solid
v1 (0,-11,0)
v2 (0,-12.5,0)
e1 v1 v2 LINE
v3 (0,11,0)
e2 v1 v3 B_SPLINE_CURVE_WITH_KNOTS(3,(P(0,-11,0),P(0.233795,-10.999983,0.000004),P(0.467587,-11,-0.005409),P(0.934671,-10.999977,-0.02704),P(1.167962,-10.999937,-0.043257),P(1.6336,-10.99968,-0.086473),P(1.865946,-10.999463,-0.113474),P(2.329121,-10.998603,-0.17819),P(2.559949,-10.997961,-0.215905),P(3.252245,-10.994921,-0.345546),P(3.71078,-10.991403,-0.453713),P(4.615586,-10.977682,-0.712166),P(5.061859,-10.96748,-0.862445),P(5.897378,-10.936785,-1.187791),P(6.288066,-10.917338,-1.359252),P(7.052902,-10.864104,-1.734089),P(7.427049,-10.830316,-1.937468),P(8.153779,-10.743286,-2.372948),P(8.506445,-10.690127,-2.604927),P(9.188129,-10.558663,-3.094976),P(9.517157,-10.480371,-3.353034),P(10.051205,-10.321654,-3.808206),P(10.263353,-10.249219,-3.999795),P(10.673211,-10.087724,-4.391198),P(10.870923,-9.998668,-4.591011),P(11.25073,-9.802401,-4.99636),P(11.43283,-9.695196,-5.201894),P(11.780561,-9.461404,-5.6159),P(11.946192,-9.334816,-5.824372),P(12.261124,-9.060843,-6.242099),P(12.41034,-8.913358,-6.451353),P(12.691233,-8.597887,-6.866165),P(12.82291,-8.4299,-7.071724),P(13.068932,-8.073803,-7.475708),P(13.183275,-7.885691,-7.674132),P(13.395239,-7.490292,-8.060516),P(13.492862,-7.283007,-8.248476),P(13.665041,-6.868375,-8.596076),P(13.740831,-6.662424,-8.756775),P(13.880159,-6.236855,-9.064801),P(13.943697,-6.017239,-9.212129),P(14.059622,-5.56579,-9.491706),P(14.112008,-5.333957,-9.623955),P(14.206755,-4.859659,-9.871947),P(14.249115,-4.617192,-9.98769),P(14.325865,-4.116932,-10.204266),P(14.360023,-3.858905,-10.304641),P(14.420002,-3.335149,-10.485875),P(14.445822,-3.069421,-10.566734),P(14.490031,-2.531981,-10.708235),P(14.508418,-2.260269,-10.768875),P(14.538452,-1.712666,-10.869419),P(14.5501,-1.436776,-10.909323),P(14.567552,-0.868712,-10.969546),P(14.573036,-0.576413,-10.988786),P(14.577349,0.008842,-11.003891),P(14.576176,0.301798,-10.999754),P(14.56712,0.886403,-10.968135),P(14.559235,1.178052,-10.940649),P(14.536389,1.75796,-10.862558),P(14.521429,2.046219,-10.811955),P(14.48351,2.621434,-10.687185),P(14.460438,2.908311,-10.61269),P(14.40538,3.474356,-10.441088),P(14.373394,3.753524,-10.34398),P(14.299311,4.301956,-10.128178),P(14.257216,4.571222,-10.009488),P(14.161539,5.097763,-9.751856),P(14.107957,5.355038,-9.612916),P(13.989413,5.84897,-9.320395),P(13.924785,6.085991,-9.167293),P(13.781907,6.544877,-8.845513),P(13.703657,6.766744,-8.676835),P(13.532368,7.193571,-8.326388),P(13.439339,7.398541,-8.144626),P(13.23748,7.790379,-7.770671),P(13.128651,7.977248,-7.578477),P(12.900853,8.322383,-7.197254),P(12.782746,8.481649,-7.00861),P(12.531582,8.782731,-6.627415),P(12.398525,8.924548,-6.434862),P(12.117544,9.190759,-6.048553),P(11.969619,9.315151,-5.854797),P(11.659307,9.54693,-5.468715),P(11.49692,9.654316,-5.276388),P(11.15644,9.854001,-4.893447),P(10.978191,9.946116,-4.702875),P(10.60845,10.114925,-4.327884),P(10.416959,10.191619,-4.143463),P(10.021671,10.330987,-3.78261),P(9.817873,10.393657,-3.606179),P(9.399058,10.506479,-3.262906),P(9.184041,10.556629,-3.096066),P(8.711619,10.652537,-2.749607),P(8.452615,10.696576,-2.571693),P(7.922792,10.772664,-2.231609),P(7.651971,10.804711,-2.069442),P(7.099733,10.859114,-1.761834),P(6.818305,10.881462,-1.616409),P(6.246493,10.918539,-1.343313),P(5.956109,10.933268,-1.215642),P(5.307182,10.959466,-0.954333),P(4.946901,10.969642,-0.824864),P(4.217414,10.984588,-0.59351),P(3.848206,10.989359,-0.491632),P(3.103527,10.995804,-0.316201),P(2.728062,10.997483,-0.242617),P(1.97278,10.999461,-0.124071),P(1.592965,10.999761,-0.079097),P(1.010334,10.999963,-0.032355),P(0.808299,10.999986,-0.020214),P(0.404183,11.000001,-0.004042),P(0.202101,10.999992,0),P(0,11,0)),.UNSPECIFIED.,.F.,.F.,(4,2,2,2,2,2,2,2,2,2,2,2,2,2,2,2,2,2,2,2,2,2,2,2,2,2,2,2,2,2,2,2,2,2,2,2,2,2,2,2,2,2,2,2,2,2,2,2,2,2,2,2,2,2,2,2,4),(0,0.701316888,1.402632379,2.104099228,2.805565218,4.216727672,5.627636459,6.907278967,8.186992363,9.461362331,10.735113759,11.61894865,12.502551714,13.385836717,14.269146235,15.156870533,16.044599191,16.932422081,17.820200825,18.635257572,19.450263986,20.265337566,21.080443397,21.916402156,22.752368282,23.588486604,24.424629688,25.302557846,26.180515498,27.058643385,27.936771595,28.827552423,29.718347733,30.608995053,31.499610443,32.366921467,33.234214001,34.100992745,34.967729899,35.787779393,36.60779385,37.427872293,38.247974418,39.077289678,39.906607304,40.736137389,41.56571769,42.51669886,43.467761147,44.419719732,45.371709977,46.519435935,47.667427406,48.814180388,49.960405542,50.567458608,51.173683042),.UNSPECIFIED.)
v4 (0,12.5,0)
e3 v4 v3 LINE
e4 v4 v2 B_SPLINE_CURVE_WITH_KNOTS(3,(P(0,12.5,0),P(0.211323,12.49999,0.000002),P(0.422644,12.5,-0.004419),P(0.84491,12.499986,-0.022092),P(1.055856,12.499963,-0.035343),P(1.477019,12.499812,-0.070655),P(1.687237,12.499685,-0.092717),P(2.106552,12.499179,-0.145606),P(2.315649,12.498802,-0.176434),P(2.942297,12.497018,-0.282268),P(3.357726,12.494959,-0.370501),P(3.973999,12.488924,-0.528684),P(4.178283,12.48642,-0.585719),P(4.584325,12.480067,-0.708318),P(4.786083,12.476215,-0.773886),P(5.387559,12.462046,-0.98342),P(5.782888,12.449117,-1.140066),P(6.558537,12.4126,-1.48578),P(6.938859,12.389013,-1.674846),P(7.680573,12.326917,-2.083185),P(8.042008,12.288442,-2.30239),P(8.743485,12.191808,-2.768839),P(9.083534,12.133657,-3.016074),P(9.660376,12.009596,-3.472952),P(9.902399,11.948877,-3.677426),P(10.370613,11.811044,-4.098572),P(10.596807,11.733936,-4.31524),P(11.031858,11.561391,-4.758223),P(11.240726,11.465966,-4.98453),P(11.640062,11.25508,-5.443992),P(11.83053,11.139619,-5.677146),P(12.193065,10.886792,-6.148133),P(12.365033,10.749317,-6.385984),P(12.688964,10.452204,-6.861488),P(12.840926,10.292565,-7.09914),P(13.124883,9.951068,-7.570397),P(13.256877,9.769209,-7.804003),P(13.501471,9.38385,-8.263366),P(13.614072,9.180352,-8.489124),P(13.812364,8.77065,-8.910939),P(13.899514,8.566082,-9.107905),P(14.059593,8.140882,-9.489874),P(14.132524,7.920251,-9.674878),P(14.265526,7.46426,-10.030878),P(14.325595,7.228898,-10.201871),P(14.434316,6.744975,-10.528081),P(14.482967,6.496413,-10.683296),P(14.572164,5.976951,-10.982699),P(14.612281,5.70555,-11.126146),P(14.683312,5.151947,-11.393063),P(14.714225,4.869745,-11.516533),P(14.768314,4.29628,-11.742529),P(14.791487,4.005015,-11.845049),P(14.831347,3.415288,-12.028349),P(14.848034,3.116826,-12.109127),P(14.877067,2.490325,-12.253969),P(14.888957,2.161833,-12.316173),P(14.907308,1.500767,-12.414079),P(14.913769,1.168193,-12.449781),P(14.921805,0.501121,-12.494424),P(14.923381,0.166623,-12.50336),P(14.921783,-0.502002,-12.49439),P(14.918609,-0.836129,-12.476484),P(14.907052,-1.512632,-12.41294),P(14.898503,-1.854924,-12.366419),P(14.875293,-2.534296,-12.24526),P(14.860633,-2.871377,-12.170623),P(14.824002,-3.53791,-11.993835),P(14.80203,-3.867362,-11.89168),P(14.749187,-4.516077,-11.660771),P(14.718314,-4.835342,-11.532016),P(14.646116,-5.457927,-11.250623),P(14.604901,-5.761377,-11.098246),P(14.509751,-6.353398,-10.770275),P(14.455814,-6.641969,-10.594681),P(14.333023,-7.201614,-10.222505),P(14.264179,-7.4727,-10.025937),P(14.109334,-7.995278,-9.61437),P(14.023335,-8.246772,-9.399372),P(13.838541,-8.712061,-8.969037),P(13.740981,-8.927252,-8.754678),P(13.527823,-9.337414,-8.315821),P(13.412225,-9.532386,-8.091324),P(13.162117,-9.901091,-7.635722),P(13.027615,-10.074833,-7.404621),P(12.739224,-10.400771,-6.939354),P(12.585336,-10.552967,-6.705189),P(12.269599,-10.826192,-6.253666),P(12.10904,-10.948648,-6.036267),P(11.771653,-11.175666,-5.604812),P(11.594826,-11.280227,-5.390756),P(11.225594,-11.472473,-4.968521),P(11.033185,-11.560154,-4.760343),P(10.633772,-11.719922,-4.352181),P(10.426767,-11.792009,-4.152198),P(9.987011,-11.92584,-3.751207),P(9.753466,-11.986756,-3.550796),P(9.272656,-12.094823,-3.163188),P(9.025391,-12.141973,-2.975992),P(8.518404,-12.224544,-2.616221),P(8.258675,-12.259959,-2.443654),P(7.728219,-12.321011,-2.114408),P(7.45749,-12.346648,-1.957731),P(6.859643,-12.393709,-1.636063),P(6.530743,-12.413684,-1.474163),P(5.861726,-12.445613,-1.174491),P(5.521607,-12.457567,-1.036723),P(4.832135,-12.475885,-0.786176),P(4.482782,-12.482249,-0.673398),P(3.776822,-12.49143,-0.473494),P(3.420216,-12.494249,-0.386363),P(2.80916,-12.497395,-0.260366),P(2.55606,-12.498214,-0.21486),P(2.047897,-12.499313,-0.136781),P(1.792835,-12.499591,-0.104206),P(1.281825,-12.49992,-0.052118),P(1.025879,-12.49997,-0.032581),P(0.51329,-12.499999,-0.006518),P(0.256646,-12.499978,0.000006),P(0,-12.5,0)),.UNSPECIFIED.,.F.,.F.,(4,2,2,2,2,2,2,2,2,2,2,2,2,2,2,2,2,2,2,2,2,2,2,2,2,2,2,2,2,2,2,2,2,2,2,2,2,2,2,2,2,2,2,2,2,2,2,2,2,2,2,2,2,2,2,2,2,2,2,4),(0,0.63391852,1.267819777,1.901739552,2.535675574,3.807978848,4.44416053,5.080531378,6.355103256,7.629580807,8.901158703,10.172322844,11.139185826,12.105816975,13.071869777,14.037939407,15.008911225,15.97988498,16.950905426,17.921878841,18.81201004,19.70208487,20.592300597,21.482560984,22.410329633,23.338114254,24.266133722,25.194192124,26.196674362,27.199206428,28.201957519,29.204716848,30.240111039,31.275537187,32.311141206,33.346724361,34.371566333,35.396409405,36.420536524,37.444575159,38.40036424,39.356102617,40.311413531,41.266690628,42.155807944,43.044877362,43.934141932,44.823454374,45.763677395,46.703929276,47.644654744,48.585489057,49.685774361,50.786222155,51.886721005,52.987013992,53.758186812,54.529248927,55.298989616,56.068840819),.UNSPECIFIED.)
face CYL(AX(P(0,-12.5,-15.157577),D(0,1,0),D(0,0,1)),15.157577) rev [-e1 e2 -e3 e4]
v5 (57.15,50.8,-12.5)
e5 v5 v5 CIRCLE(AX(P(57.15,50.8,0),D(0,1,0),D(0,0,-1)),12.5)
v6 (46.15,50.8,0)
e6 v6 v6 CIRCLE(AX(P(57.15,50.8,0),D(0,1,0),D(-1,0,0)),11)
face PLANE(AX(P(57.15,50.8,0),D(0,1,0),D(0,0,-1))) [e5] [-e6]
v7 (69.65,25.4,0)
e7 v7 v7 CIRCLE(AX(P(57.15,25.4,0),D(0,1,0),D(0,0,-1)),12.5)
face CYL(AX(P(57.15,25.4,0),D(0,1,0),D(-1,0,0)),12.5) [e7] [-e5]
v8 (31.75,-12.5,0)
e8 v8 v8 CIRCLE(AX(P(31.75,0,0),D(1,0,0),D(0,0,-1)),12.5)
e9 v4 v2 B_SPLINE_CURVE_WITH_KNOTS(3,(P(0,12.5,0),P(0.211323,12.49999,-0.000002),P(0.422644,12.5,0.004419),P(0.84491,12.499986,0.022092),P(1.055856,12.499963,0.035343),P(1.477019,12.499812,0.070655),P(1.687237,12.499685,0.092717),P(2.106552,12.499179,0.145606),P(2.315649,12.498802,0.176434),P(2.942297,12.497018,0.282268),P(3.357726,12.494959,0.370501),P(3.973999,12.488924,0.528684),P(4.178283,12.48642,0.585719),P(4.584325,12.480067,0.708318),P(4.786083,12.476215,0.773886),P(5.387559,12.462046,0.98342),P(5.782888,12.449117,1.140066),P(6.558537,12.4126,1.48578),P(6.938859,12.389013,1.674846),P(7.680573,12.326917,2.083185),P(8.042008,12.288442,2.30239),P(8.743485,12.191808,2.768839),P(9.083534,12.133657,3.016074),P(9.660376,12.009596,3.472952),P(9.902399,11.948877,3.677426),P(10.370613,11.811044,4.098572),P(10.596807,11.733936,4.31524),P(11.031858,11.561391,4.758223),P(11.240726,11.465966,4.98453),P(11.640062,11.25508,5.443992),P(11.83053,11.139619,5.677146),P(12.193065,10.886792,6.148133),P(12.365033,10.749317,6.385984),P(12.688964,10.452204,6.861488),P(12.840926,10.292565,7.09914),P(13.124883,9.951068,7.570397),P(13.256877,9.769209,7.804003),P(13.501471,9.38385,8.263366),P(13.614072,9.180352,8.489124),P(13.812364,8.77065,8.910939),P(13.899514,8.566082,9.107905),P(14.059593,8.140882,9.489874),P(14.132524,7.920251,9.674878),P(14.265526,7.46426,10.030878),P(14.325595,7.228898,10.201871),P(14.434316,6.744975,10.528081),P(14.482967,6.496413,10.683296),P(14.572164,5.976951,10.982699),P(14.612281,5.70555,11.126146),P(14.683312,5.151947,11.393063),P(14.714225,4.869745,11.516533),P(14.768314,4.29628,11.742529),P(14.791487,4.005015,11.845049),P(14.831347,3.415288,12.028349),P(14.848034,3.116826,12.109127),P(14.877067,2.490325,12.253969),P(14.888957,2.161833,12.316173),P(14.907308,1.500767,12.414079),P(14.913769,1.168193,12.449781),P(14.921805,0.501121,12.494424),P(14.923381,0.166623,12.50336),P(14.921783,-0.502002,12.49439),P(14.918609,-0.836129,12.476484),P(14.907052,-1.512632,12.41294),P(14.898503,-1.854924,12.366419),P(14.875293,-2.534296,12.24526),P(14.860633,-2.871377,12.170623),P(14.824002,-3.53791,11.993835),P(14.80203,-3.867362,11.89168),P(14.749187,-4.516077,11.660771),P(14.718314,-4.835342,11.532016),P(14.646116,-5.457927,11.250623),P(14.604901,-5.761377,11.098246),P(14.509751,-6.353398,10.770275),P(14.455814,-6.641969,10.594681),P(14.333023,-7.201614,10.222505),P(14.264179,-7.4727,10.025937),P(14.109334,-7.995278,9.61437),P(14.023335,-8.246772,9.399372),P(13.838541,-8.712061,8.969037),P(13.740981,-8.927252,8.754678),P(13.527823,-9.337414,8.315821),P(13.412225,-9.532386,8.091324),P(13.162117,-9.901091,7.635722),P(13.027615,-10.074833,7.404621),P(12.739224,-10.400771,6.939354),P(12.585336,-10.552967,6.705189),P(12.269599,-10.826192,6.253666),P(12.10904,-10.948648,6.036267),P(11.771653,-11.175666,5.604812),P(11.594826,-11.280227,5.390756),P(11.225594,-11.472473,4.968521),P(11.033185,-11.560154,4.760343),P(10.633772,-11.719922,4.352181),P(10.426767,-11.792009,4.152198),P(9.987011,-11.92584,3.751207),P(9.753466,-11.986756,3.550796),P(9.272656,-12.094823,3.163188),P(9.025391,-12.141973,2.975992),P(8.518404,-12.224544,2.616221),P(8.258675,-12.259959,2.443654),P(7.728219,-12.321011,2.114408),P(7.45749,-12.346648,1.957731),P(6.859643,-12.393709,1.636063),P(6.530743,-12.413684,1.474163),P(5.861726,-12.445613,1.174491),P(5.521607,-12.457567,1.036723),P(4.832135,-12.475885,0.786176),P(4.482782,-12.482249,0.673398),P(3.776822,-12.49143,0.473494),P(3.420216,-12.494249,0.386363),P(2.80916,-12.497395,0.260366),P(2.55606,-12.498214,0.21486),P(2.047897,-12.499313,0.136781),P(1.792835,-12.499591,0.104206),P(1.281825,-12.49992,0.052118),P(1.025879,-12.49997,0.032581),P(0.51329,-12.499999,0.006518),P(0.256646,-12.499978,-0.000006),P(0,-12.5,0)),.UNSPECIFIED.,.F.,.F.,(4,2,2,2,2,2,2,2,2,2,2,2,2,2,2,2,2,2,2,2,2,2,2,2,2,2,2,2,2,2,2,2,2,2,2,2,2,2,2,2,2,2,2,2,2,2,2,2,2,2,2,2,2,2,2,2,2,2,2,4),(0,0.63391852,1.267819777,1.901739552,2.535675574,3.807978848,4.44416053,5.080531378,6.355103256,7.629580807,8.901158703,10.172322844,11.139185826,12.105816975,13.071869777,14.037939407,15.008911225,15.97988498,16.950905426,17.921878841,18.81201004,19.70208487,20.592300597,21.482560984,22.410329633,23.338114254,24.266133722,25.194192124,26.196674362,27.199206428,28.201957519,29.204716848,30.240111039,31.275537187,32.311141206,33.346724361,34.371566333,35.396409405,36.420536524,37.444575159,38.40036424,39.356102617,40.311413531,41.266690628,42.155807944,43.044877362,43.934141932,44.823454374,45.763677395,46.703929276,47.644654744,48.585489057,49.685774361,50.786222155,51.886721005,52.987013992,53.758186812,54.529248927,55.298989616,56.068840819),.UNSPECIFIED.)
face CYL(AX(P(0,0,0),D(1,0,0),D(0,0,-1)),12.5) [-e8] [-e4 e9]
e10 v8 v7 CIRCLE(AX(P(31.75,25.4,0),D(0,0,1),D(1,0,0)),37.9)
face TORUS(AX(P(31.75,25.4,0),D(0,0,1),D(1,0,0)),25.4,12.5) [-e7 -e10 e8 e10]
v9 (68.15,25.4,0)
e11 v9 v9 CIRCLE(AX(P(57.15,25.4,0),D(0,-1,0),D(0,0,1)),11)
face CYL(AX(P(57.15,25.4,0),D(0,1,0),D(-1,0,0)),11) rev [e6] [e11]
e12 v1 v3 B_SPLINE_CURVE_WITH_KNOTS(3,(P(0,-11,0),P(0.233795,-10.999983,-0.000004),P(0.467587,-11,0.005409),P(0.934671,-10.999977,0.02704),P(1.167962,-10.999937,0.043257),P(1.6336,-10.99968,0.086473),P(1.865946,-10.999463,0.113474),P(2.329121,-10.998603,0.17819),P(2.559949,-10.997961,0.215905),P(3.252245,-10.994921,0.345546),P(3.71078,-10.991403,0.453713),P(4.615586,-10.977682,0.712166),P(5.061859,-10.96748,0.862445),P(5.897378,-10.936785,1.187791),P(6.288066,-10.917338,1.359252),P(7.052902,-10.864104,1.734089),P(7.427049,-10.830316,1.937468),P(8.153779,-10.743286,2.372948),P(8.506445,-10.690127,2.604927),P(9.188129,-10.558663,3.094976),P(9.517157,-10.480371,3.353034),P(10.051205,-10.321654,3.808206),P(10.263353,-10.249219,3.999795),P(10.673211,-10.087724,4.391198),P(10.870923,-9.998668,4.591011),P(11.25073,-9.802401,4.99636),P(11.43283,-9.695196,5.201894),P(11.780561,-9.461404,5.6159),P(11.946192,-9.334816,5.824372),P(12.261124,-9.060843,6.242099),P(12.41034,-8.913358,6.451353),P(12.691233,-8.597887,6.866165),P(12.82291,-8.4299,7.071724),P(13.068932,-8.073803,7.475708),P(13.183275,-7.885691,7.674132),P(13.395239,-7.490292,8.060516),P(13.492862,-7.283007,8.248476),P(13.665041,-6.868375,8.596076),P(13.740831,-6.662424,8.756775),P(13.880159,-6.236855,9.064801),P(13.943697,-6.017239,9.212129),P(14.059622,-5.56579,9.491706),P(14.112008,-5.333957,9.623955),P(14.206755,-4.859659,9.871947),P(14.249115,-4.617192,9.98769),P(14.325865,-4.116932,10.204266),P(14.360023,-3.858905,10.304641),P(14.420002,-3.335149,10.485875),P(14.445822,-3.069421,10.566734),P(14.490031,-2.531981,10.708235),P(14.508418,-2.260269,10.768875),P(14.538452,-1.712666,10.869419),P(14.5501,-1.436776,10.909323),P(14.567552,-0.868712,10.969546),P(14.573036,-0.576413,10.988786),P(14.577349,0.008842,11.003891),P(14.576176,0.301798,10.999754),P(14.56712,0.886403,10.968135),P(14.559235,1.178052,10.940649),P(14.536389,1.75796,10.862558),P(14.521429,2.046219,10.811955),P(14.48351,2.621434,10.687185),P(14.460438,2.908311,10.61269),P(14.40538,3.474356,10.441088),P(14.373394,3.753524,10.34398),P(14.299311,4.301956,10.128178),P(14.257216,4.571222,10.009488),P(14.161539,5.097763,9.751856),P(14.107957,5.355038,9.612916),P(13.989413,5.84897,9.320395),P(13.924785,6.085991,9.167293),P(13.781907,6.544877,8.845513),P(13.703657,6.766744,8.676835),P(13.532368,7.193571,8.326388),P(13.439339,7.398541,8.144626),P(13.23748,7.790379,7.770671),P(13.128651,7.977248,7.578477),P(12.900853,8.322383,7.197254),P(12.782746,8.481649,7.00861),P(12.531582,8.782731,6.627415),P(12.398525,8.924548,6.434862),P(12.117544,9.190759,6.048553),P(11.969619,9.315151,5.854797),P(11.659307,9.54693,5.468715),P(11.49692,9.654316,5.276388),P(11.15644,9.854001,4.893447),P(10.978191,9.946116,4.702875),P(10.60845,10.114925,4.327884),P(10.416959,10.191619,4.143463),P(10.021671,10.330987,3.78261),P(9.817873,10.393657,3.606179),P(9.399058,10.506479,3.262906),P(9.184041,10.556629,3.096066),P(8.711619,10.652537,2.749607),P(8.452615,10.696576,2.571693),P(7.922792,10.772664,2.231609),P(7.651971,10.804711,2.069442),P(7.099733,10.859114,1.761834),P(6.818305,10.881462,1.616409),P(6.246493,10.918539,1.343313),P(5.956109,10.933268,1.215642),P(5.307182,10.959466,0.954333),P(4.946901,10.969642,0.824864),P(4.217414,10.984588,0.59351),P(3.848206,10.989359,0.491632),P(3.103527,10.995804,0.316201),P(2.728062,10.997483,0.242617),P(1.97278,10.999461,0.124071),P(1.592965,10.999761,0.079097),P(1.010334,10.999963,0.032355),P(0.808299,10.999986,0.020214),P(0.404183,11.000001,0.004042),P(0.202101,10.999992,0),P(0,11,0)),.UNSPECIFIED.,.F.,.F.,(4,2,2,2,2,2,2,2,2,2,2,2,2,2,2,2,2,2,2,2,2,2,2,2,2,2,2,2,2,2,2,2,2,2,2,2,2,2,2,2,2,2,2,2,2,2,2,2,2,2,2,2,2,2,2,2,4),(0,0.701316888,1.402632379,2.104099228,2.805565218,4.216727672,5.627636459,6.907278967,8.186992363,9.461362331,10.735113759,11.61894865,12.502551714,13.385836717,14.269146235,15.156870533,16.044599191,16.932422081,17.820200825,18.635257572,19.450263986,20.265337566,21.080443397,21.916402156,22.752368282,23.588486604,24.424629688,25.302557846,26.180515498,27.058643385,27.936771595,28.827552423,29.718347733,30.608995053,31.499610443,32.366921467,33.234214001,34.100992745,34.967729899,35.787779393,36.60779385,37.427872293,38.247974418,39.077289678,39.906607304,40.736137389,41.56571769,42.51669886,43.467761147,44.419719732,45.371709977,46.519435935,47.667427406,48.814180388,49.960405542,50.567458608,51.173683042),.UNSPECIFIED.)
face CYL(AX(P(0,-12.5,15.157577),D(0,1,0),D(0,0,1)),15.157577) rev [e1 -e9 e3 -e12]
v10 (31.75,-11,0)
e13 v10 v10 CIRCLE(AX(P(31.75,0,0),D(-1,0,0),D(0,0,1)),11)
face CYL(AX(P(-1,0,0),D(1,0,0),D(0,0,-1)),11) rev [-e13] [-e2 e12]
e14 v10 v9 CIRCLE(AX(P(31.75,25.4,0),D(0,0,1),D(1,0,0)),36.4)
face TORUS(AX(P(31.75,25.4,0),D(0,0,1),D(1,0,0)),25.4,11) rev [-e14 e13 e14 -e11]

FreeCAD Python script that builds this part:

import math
import FreeCAD as App
import Part
import Sketcher

V = App.Vector
Q = App.Units.Quantity

doc = App.newDocument("Part")
body = doc.addObject("PartDesign::Body", "Body")

sketch1 = doc.addObject("Sketcher::SketchObject", "Sketch")
body.addObject(sketch1)
sketch1.AttachmentSupport = (doc.YZ_Plane, [""])
sketch1.MapMode = "FlatFace"
sketch1.addGeometry(Part.Circle(V(0, 0, 0), V(0, 0, 1), 12), False)
sketch1.addConstraint(Sketcher.Constraint("Coincident", 0, 3, -1, 1))
sketch1.addConstraint(Sketcher.Constraint("Diameter", 0, 25.0))

sketch2 = doc.addObject("Sketcher::SketchObject", "Sketch001")
body.addObject(sketch2)
sketch2.AttachmentSupport = (doc.XY_Plane, [""])
sketch2.MapMode = "FlatFace"
sketch2.addGeometry(Part.LineSegment(V(0, 0, 0), V(32, 0, 0)), False)
sketch2.addGeometry(Part.ArcOfCircle(Part.Circle(V(32, 25, 0), V(0, 0, 1), 25), math.radians(-90), math.radians(0)), False)
sketch2.addGeometry(Part.LineSegment(V(57, 25, 0), V(57, 51, 0)), False)
sketch2.addConstraint(Sketcher.Constraint("Tangent", 0, 2, 1, 1))
sketch2.addConstraint(Sketcher.Constraint("Tangent", 1, 2, 2, 1))
sketch2.addConstraint(Sketcher.Constraint("Horizontal", 0))
sketch2.addConstraint(Sketcher.Constraint("Vertical", 2))
sketch2.addConstraint(Sketcher.Constraint("Coincident", 0, 1, -1, 1))
sketch2.addConstraint(Sketcher.Constraint("Radius", 1, Q("1 in")))
sketch2.addConstraint(Sketcher.Constraint("DistanceY", 2, 1, 2, 2, Q("1 in")))
sketch2.addConstraint(Sketcher.Constraint("DistanceX", 0, 1, 0, 2, Q("1.25 in")))
doc.recompute()

additivepipe = doc.addObject("PartDesign::AdditivePipe", "AdditivePipe")
body.addObject(additivepipe)
additivepipe.Profile = sketch1
additivepipe.Spine = (sketch2, ["Edge1", "Edge2", "Edge3"])

sketch3 = doc.addObject("Sketcher::SketchObject", "Sketch002")
body.addObject(sketch3)
sketch3.AttachmentSupport = (doc.YZ_Plane, [""])
sketch3.MapMode = "FlatFace"
sketch3.addGeometry(Part.Circle(V(0, 0, 0), V(0, 0, 1), 11), False)
sketch3.addConstraint(Sketcher.Constraint("Coincident", 0, 3, -1, 1))
sketch3.addConstraint(Sketcher.Constraint("Diameter", 0, 22.0))

sketch4 = doc.addObject("Sketcher::SketchObject", "Sketch003")
body.addObject(sketch4)
sketch4.AttachmentSupport = (doc.XY_Plane, [""])
sketch4.MapMode = "FlatFace"
sketch4.addGeometry(Part.LineSegment(V(0, 0, 0), V(32, 0, 0)), False)
sketch4.addGeometry(Part.ArcOfCircle(Part.Circle(V(32, 25, 0), V(0, 0, 1), 25), math.radians(-90), math.radians(0)), False)
sketch4.addGeometry(Part.LineSegment(V(57, 25, 0), V(57, 51, 0)), False)
sketch4.addConstraint(Sketcher.Constraint("Tangent", 0, 2, 1, 1))
sketch4.addConstraint(Sketcher.Constraint("Tangent", 1, 2, 2, 1))
sketch4.addConstraint(Sketcher.Constraint("Horizontal", 0))
sketch4.addConstraint(Sketcher.Constraint("Vertical", 2))
sketch4.addConstraint(Sketcher.Constraint("Coincident", 0, 1, -1, 1))
sketch4.addConstraint(Sketcher.Constraint("Radius", 1, Q("1 in")))
sketch4.addConstraint(Sketcher.Constraint("DistanceY", 2, 1, 2, 2, Q("1 in")))
sketch4.addConstraint(Sketcher.Constraint("DistanceX", 0, 1, 0, 2, Q("1.25 in")))
doc.recompute()

subtractivepipe = doc.addObject("PartDesign::SubtractivePipe", "SubtractivePipe")
body.addObject(subtractivepipe)
subtractivepipe.Profile = sketch3
subtractivepipe.Spine = (sketch4, ["Edge1", "Edge2", "Edge3"])

sketch5 = doc.addObject("Sketcher::SketchObject", "Sketch004")
body.addObject(sketch5)
sketch5.AttachmentSupport = (doc.XZ_Plane, [""])
sketch5.MapMode = "FlatFace"
sketch5.AttachmentOffset = App.Placement(V(0, 0, -0.5 * 25.4), App.Rotation())
sketch5.addGeometry(Part.Circle(V(0, -15, 0), V(0, 0, 1), 15), False)
sketch5.addConstraint(Sketcher.Constraint("PointOnObject", 0, 3, -2))
sketch5.addConstraint(Sketcher.Constraint("Diameter", 0, 30.315154))
sketch5.addConstraint(Sketcher.Constraint("DistanceY", 0, 3, -1, 1, 15.157577))
pocket1 = doc.addObject("PartDesign::Pocket", "Pocket")
body.addObject(pocket1)
pocket1.Profile = sketch5
pocket1.Type = "ThroughAll"
pocket1.Reversed = True
doc.recompute()

mirrored = doc.addObject("PartDesign::Mirrored", "Mirrored")
body.addObject(mirrored)
mirrored.Originals = [pocket1]
mirrored.MirrorPlane = (doc.XY_Plane, [""])
body.Tip = mirrored

doc.recompute()
